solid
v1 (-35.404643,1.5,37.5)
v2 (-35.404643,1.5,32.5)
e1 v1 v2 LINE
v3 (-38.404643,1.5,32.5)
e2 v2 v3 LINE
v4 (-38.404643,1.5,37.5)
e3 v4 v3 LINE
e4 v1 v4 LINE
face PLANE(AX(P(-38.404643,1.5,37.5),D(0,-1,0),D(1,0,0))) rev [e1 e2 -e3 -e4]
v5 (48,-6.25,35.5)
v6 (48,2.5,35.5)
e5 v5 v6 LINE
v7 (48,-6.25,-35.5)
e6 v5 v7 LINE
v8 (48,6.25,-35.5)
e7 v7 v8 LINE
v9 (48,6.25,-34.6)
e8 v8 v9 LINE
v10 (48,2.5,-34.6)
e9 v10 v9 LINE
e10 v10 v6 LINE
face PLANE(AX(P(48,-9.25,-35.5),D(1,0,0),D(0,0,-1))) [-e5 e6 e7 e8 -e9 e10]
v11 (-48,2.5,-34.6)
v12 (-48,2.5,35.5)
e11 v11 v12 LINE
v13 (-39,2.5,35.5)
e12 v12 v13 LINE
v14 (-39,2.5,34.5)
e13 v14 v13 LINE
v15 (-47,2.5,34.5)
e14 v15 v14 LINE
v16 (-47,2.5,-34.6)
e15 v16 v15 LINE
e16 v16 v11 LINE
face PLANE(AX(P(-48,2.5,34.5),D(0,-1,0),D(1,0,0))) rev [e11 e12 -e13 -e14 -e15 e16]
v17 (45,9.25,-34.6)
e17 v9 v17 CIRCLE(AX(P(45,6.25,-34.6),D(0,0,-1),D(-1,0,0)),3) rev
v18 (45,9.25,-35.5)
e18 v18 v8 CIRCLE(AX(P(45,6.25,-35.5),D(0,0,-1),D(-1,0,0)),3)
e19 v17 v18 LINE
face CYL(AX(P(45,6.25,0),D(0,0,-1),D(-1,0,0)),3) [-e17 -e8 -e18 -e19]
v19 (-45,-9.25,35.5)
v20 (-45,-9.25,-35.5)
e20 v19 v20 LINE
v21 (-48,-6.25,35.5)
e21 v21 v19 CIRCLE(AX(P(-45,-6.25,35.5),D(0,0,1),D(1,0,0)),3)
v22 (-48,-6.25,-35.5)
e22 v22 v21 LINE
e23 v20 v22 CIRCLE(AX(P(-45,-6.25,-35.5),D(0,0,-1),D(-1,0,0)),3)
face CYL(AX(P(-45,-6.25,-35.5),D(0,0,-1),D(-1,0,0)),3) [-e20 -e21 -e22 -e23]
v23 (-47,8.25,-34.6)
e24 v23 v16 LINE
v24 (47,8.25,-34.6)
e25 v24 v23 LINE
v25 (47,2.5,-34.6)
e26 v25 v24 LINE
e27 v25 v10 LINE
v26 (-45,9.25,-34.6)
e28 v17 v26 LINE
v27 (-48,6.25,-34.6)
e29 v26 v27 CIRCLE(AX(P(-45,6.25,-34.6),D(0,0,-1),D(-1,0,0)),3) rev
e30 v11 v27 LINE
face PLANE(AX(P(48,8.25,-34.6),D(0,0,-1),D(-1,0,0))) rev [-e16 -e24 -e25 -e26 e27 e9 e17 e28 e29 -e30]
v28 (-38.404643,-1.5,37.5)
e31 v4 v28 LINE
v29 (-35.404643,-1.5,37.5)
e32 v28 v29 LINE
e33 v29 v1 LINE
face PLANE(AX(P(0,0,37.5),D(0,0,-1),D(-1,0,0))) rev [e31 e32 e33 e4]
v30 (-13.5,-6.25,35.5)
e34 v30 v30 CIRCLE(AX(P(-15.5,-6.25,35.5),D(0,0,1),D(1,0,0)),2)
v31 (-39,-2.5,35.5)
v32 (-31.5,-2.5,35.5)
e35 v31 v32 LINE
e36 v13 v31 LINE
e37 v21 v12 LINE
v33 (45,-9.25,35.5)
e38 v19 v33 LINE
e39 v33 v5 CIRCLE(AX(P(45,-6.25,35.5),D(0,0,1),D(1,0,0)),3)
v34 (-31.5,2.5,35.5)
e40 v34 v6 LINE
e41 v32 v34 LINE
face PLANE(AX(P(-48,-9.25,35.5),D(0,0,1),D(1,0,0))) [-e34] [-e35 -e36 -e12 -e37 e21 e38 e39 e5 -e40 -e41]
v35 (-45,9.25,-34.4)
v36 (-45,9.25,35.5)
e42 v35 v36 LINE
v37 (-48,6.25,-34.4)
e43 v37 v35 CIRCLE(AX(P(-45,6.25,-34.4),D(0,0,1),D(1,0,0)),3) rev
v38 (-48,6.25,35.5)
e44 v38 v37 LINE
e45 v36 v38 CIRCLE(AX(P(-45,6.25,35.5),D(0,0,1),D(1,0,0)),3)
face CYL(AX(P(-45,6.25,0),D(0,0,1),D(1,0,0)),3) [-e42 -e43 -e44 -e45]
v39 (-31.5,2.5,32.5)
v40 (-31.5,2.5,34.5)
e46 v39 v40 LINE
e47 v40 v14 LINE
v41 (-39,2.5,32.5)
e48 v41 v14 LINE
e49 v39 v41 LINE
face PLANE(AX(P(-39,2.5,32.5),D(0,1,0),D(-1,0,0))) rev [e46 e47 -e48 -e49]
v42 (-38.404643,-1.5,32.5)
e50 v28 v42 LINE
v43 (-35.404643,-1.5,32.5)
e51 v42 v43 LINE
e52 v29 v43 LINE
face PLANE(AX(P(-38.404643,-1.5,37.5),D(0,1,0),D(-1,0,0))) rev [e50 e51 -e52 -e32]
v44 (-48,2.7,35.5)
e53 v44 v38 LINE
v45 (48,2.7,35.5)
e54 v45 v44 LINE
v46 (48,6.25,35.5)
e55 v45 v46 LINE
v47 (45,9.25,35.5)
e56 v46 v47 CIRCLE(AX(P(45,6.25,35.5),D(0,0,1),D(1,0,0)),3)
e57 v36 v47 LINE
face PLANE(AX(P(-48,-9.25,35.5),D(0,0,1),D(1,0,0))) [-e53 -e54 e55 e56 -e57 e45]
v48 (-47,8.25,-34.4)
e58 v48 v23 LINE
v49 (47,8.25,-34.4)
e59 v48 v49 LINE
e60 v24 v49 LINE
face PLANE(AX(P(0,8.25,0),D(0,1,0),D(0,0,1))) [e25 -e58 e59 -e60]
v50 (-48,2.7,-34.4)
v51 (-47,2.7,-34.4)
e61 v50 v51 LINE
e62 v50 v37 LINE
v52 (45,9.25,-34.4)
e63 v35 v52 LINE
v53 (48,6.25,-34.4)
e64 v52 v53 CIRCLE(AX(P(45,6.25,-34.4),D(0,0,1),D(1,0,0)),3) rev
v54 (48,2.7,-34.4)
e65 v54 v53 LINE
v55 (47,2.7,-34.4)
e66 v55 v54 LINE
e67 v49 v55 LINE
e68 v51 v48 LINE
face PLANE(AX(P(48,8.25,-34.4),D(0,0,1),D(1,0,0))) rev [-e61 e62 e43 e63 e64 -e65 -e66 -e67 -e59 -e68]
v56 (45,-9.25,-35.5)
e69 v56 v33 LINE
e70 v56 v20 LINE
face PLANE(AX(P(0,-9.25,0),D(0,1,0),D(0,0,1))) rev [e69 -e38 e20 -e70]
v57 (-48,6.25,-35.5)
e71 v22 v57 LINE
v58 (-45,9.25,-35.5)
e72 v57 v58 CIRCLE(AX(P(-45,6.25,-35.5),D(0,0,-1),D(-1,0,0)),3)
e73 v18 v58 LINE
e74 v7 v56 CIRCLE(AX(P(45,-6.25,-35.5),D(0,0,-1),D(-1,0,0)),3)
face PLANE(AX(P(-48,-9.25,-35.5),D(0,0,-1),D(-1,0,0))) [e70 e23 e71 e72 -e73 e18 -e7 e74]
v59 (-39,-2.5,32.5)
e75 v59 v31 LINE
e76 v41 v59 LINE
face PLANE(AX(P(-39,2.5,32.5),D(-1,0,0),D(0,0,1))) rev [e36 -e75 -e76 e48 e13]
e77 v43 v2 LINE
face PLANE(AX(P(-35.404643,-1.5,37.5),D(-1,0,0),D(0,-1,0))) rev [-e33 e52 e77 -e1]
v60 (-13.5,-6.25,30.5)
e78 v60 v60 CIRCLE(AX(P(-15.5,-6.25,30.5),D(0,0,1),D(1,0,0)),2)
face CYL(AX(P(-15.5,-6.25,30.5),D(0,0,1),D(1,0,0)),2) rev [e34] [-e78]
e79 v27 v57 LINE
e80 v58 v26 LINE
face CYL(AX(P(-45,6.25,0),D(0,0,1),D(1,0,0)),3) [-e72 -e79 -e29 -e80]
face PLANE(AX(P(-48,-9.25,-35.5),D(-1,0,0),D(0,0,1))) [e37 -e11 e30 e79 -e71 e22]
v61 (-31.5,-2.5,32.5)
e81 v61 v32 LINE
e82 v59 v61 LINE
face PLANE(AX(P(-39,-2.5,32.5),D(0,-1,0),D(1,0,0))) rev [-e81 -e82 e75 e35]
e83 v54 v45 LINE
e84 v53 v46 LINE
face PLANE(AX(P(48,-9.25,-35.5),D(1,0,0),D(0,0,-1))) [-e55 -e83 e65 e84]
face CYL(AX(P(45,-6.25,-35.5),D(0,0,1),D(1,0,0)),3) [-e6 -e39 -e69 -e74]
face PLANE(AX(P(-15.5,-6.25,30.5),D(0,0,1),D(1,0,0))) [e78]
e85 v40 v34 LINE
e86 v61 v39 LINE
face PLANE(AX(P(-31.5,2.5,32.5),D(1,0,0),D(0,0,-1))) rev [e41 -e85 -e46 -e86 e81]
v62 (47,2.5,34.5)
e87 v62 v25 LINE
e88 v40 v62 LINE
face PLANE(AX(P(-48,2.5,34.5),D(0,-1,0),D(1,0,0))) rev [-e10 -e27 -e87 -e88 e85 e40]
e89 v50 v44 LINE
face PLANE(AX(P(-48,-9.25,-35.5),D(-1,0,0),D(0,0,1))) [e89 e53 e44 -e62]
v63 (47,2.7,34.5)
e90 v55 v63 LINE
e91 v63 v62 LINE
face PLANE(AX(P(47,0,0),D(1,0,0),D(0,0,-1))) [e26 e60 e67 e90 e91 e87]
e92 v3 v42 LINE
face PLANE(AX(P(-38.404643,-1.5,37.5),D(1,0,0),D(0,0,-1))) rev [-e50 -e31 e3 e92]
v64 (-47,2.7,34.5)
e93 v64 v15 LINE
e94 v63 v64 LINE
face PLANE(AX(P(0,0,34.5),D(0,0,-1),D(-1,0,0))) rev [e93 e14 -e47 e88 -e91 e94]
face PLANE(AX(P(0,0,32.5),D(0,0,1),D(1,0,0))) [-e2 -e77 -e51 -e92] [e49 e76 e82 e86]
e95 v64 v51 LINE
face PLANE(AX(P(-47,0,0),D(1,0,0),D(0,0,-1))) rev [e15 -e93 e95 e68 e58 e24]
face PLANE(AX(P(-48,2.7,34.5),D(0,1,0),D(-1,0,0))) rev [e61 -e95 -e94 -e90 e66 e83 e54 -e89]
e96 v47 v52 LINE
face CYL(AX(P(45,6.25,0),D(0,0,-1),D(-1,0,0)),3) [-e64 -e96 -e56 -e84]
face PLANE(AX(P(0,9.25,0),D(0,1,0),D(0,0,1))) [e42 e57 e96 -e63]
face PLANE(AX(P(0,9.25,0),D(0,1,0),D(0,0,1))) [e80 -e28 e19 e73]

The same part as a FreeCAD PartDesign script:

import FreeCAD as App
import Part
import Sketcher
from FreeCAD import Vector
Q = App.Units.Quantity


def edges_at(feature, points):
    """Names of the edges that pass closest to the given points."""
    edges = feature.Shape.Edges
    near = lambda p: min(range(len(edges)), key=lambda i: edges[i].distToShape(Part.Vertex(*p))[0])
    return sorted({f"Edge{near(p) + 1}" for p in points})

doc = App.newDocument("Part")
body = doc.addObject("PartDesign::Body", "Body")

# Sketch on XZ plane
sketch1 = doc.addObject("Sketcher::SketchObject", "Sketch")
body.addObject(sketch1)
sketch1.AttachmentSupport = (doc.XZ_Plane, [""])
sketch1.MapMode = "FlatFace"
sketch1.addGeometry([
    Part.LineSegment(Vector(-48, -36, 0), Vector(-48, 36, 0)),
    Part.LineSegment(Vector(-48, 36, 0), Vector(48, 36, 0)),
    Part.LineSegment(Vector(48, 36, 0), Vector(48, -36, 0)),
    Part.LineSegment(Vector(48, -36, 0), Vector(-48, -36, 0)),
], False)
sketch1.addConstraint([
    Sketcher.Constraint("Coincident", 0, 2, 1, 1),
    Sketcher.Constraint("Coincident", 1, 2, 2, 1),
    Sketcher.Constraint("Coincident", 2, 2, 3, 1),
    Sketcher.Constraint("Coincident", 3, 2, 0, 1),
    Sketcher.Constraint("Vertical", 0),
    Sketcher.Constraint("Horizontal", 1),
    Sketcher.Constraint("Vertical", 2),
    Sketcher.Constraint("Horizontal", 3),
    Sketcher.Constraint("Symmetric", 0, 2, 2, 2, -1, 1),
    Sketcher.Constraint("DistanceX", 1, 1, 1, 2, Q("96 mm")),
    Sketcher.Constraint("DistanceY", 0, 1, 0, 2, Q("71 mm")),
])
pad1 = doc.addObject("PartDesign::Pad", "Pad")
body.addObject(pad1)
pad1.Profile = sketch1
pad1.Type = "TwoLengths"
pad1.Length = 9.25
pad1.Length2 = 9.25
pad1.Reversed = True

# Sketch on XY plane
sketch2 = doc.addObject("Sketcher::SketchObject", "Sketch001")
body.addObject(sketch2)
sketch2.AttachmentSupport = (doc.XY_Plane, [""])
sketch2.MapMode = "FlatFace"
sketch2.AttachmentOffset = App.Placement(Vector(0, 0, 35.5), App.Rotation())
sketch2.addGeometry([
    Part.LineSegment(Vector(-39, 2, 0), Vector(-39, -2, 0)),
    Part.LineSegment(Vector(-39, -2, 0), Vector(-32, -2, 0)),
    Part.LineSegment(Vector(-32, -2, 0), Vector(-32, 2, 0)),
    Part.LineSegment(Vector(-32, 2, 0), Vector(-39, 2, 0)),
], False)
sketch2.addConstraint([
    Sketcher.Constraint("Coincident", 0, 2, 1, 1),
    Sketcher.Constraint("Coincident", 1, 2, 2, 1),
    Sketcher.Constraint("Coincident", 2, 2, 3, 1),
    Sketcher.Constraint("Coincident", 3, 2, 0, 1),
    Sketcher.Constraint("Vertical", 0),
    Sketcher.Constraint("Horizontal", 1),
    Sketcher.Constraint("Vertical", 2),
    Sketcher.Constraint("Horizontal", 3),
    Sketcher.Constraint("DistanceY", 0, 2, 0, 1, Q("5 mm")),
    Sketcher.Constraint("DistanceX", 1, 1, 1, 2, Q("7.5 mm")),
    Sketcher.Constraint("DistanceX", 0, 2, -1, 1, Q("39 mm")),
    Sketcher.Constraint("DistanceY", 0, 2, -1, 1, Q("2.5 mm")),
])
pocket1 = doc.addObject("PartDesign::Pocket", "Pocket")
body.addObject(pocket1)
pocket1.Profile = sketch2
pocket1.Length = 3

# Sketch on XY plane
sketch3 = doc.addObject("Sketcher::SketchObject", "Sketch002")
body.addObject(sketch3)
sketch3.AttachmentSupport = (doc.XY_Plane, [""])
sketch3.MapMode = "FlatFace"
sketch3.AttachmentOffset = App.Placement(Vector(0, 0, 32.5), App.Rotation())
sketch3.addGeometry([
    Part.LineSegment(Vector(-38.4, 1.5, 0), Vector(-38.4, -1.5, 0)),
    Part.LineSegment(Vector(-38.4, -1.5, 0), Vector(-35.4, -1.5, 0)),
    Part.LineSegment(Vector(-35.4, -1.5, 0), Vector(-35.4, 1.5, 0)),
    Part.LineSegment(Vector(-35.4, 1.5, 0), Vector(-38.4, 1.5, 0)),
], False)
sketch3.addConstraint([
    Sketcher.Constraint("Coincident", 0, 2, 1, 1),
    Sketcher.Constraint("Coincident", 1, 2, 2, 1),
    Sketcher.Constraint("Coincident", 2, 2, 3, 1),
    Sketcher.Constraint("Coincident", 3, 2, 0, 1),
    Sketcher.Constraint("Vertical", 0),
    Sketcher.Constraint("Horizontal", 1),
    Sketcher.Constraint("Vertical", 2),
    Sketcher.Constraint("Horizontal", 3),
    Sketcher.Constraint("Equal", 3, 0),
    Sketcher.Constraint("DistanceX", 1, 1, 1, 2, Q("3 mm")),
    Sketcher.Constraint("DistanceY", 0, 2, -1, 1, Q("1.5 mm")),
    Sketcher.Constraint("DistanceX", 0, 2, -1, 1, Q("38.404643 mm")),
])
pad2 = doc.addObject("PartDesign::Pad", "Pad001")
body.addObject(pad2)
pad2.Profile = sketch3
pad2.Length = 5

# Sketch on XY plane
sketch4 = doc.addObject("Sketcher::SketchObject", "Sketch003")
body.addObject(sketch4)
sketch4.AttachmentSupport = (doc.XY_Plane, [""])
sketch4.MapMode = "FlatFace"
sketch4.AttachmentOffset = App.Placement(Vector(0, 0, 35.5), App.Rotation())
sketch4.addGeometry(Part.Circle(Vector(-15.5, -6.2, 0), Vector(0, 0, 1), 2), False)
sketch4.addConstraint([
    Sketcher.Constraint("Diameter", 0, Q("4 mm")),
    Sketcher.Constraint("DistanceX", 0, 3, -1, 1, Q("15.5 mm")),
    Sketcher.Constraint("DistanceY", 0, 3, -1, 1, Q("6.25 mm")),
])
pocket2 = doc.addObject("PartDesign::Pocket", "Pocket001")
body.addObject(pocket2)
pocket2.Profile = sketch4
pocket2.Length = 5

# Sketch on XY plane
sketch5 = doc.addObject("Sketcher::SketchObject", "Sketch004")
body.addObject(sketch5)
sketch5.AttachmentSupport = (doc.XY_Plane, [""])
sketch5.MapMode = "FlatFace"
sketch5.AttachmentOffset = App.Placement(Vector(0, 0, 35.5), App.Rotation())
sketch5.addGeometry([
    Part.LineSegment(Vector(-48, 2.7, 0), Vector(-48, 2.5, 0)),
    Part.LineSegment(Vector(-48, 2.5, 0), Vector(48, 2.5, 0)),
    Part.LineSegment(Vector(48, 2.5, 0), Vector(48, 2.7, 0)),
    Part.LineSegment(Vector(48, 2.7, 0), Vector(-48, 2.7, 0)),
], False)
sketch5.addConstraint([
    Sketcher.Constraint("Coincident", 0, 2, 1, 1),
    Sketcher.Constraint("Coincident", 1, 2, 2, 1),
    Sketcher.Constraint("Coincident", 2, 2, 3, 1),
    Sketcher.Constraint("Coincident", 3, 2, 0, 1),
    Sketcher.Constraint("Vertical", 0),
    Sketcher.Constraint("Horizontal", 1),
    Sketcher.Constraint("Vertical", 2),
    Sketcher.Constraint("Horizontal", 3),
    Sketcher.Constraint("DistanceX", 1, 1, 1, 2, Q("96 mm")),
    Sketcher.Constraint("DistanceY", 0, 2, 0, 1, Q("0.2 mm")),
    Sketcher.Constraint("DistanceX", 0, 2, -1, 1, Q("48 mm")),
    Sketcher.Constraint("DistanceY", -1, 1, 0, 2, Q("2.5 mm")),
])
pocket3 = doc.addObject("PartDesign::Pocket", "Pocket002")
body.addObject(pocket3)
pocket3.Profile = sketch5
pocket3.Length = 1

# Sketch on YZ plane
sketch6 = doc.addObject("Sketcher::SketchObject", "Sketch005")
body.addObject(sketch6)
sketch6.AttachmentSupport = (doc.YZ_Plane, [""])
sketch6.MapMode = "FlatFace"
sketch6.AttachmentOffset = App.Placement(Vector(0, 0, -48), App.Rotation())
sketch6.addGeometry([
    Part.LineSegment(Vector(2.7, -34.5, 0), Vector(2.5, -34.5, 0)),
    Part.LineSegment(Vector(2.5, -34.5, 0), Vector(2.5, 35.5, 0)),
    Part.LineSegment(Vector(2.5, 35.5, 0), Vector(2.7, 35.5, 0)),
    Part.LineSegment(Vector(2.7, 35.5, 0), Vector(2.7, -34.5, 0)),
], False)
sketch6.addConstraint([
    Sketcher.Constraint("Coincident", 0, 2, 1, 1),
    Sketcher.Constraint("Coincident", 1, 2, 2, 1),
    Sketcher.Constraint("Coincident", 2, 2, 3, 1),
    Sketcher.Constraint("Coincident", 3, 2, 0, 1),
    Sketcher.Constraint("Horizontal", 0),
    Sketcher.Constraint("Vertical", 1),
    Sketcher.Constraint("Horizontal", 2),
    Sketcher.Constraint("Vertical", 3),
    Sketcher.Constraint("DistanceY", 1, 1, 1, 2, Q("70 mm")),
    Sketcher.Constraint("DistanceX", 0, 2, 0, 1, Q("0.2 mm")),
    Sketcher.Constraint("DistanceX", -1, 1, 0, 2, Q("2.5 mm")),
    Sketcher.Constraint("DistanceY", 0, 2, -1, 1, Q("34.5 mm")),
])
pocket4 = doc.addObject("PartDesign::Pocket", "Pocket003")
body.addObject(pocket4)
pocket4.Profile = sketch6
pocket4.Length = 1
pocket4.Reversed = True

# Sketch on YZ plane
sketch7 = doc.addObject("Sketcher::SketchObject", "Sketch006")
body.addObject(sketch7)
sketch7.AttachmentSupport = (doc.YZ_Plane, [""])
sketch7.MapMode = "FlatFace"
sketch7.AttachmentOffset = App.Placement(Vector(0, 0, 48), App.Rotation())
sketch7.addGeometry([
    Part.LineSegment(Vector(2.7, 35.5, 0), Vector(2.5, 35.5, 0)),
    Part.LineSegment(Vector(2.5, 35.5, 0), Vector(2.5, -34.5, 0)),
    Part.LineSegment(Vector(2.5, -34.5, 0), Vector(2.7, -34.5, 0)),
    Part.LineSegment(Vector(2.7, -34.5, 0), Vector(2.7, 35.5, 0)),
], False)
sketch7.addConstraint([
    Sketcher.Constraint("Coincident", 0, 2, 1, 1),
    Sketcher.Constraint("Coincident", 1, 2, 2, 1),
    Sketcher.Constraint("Coincident", 2, 2, 3, 1),
    Sketcher.Constraint("Coincident", 3, 2, 0, 1),
    Sketcher.Constraint("Horizontal", 0),
    Sketcher.Constraint("Vertical", 1),
    Sketcher.Constraint("Horizontal", 2),
    Sketcher.Constraint("Vertical", 3),
    Sketcher.Constraint("DistanceY", 1, 2, 1, 1, Q("70 mm")),
    Sketcher.Constraint("DistanceX", 0, 2, 0, 1, Q("0.2 mm")),
    Sketcher.Constraint("DistanceX", -1, 1, 0, 2, Q("2.5 mm")),
    Sketcher.Constraint("DistanceY", -1, 1, 0, 2, Q("35.5 mm")),
])
pocket5 = doc.addObject("PartDesign::Pocket", "Pocket004")
body.addObject(pocket5)
pocket5.Profile = sketch7
pocket5.Length = 1

# Sketch on XZ plane
sketch8 = doc.addObject("Sketcher::SketchObject", "Sketch007")
body.addObject(sketch8)
sketch8.AttachmentSupport = (doc.XZ_Plane, [""])
sketch8.MapMode = "FlatFace"
sketch8.AttachmentOffset = App.Placement(Vector(0, 0, -9.25), App.Rotation())
sketch8.addGeometry([
    Part.LineSegment(Vector(-48, -34.6, 0), Vector(-48, -34.4, 0)),
    Part.LineSegment(Vector(-48, -34.4, 0), Vector(48, -34.4, 0)),
    Part.LineSegment(Vector(48, -34.4, 0), Vector(48, -34.6, 0)),
    Part.LineSegment(Vector(48, -34.6, 0), Vector(-48, -34.6, 0)),
], False)
sketch8.addConstraint([
    Sketcher.Constraint("Coincident", 0, 2, 1, 1),
    Sketcher.Constraint("Coincident", 1, 2, 2, 1),
    Sketcher.Constraint("Coincident", 2, 2, 3, 1),
    Sketcher.Constraint("Coincident", 3, 2, 0, 1),
    Sketcher.Constraint("Vertical", 0),
    Sketcher.Constraint("Horizontal", 1),
    Sketcher.Constraint("Vertical", 2),
    Sketcher.Constraint("Horizontal", 3),
    Sketcher.Constraint("DistanceX", 1, 1, 1, 2, Q("96 mm")),
    Sketcher.Constraint("DistanceY", 0, 1, 0, 2, Q("0.2 mm")),
    Sketcher.Constraint("DistanceX", 0, 2, -1, 1, Q("48 mm")),
    Sketcher.Constraint("DistanceY", 0, 2, -1, 1, Q("34.4 mm")),
])
pocket6 = doc.addObject("PartDesign::Pocket", "Pocket005")
body.addObject(pocket6)
pocket6.Profile = sketch8
pocket6.Length = 1
pocket6.Reversed = True

# Sketch on YZ plane
sketch9 = doc.addObject("Sketcher::SketchObject", "Sketch008")
body.addObject(sketch9)
sketch9.AttachmentSupport = (doc.YZ_Plane, [""])
sketch9.MapMode = "FlatFace"
sketch9.AttachmentOffset = App.Placement(Vector(0, 0, -48), App.Rotation())
sketch9.addGeometry([
    Part.LineSegment(Vector(8.25, -34.6, 0), Vector(2.5, -34.6, 0)),
    Part.LineSegment(Vector(2.5, -34.6, 0), Vector(2.5, -34.4, 0)),
    Part.LineSegment(Vector(2.5, -34.4, 0), Vector(8.25, -34.4, 0)),
    Part.LineSegment(Vector(8.25, -34.4, 0), Vector(8.25, -34.6, 0)),
], False)
sketch9.addConstraint([
    Sketcher.Constraint("Coincident", 0, 2, 1, 1),
    Sketcher.Constraint("Coincident", 1, 2, 2, 1),
    Sketcher.Constraint("Coincident", 2, 2, 3, 1),
    Sketcher.Constraint("Coincident", 3, 2, 0, 1),
    Sketcher.Constraint("Horizontal", 0),
    Sketcher.Constraint("Vertical", 1),
    Sketcher.Constraint("Horizontal", 2),
    Sketcher.Constraint("Vertical", 3),
    Sketcher.Constraint("DistanceY", 1, 1, 1, 2, Q("0.2 mm")),
    Sketcher.Constraint("DistanceX", 0, 2, 0, 1, Q("5.75 mm")),
    Sketcher.Constraint("DistanceX", -1, 1, 0, 2, Q("2.5 mm")),
    Sketcher.Constraint("DistanceY", 0, 2, -1, 1, Q("34.6 mm")),
])
pocket7 = doc.addObject("PartDesign::Pocket", "Pocket006")
body.addObject(pocket7)
pocket7.Profile = sketch9
pocket7.Length = 1
pocket7.Reversed = True

# Sketch on YZ plane
sketch10 = doc.addObject("Sketcher::SketchObject", "Sketch009")
body.addObject(sketch10)
sketch10.AttachmentSupport = (doc.YZ_Plane, [""])
sketch10.MapMode = "FlatFace"
sketch10.AttachmentOffset = App.Placement(Vector(0, 0, 48), App.Rotation())
sketch10.addGeometry([
    Part.LineSegment(Vector(8.25, -34.4, 0), Vector(2.5, -34.4, 0)),
    Part.LineSegment(Vector(2.5, -34.4, 0), Vector(2.5, -34.6, 0)),
    Part.LineSegment(Vector(2.5, -34.6, 0), Vector(8.25, -34.6, 0)),
    Part.LineSegment(Vector(8.25, -34.6, 0), Vector(8.25, -34.4, 0)),
], False)
sketch10.addConstraint([
    Sketcher.Constraint("Coincident", 0, 2, 1, 1),
    Sketcher.Constraint("Coincident", 1, 2, 2, 1),
    Sketcher.Constraint("Coincident", 2, 2, 3, 1),
    Sketcher.Constraint("Coincident", 3, 2, 0, 1),
    Sketcher.Constraint("Horizontal", 0),
    Sketcher.Constraint("Vertical", 1),
    Sketcher.Constraint("Horizontal", 2),
    Sketcher.Constraint("Vertical", 3),
    Sketcher.Constraint("DistanceY", 1, 2, 1, 1, Q("0.2 mm")),
    Sketcher.Constraint("DistanceX", 0, 2, 0, 1, Q("5.75 mm")),
    Sketcher.Constraint("DistanceX", -1, 1, 0, 2, Q("2.5 mm")),
    Sketcher.Constraint("DistanceY", 0, 2, -1, 1, Q("34.4 mm")),
])
pocket8 = doc.addObject("PartDesign::Pocket", "Pocket007")
body.addObject(pocket8)
pocket8.Profile = sketch10
pocket8.Length = 1
doc.recompute()

fillet = doc.addObject("PartDesign::Fillet", "Fillet")
body.addObject(fillet)
fillet.Base = (pocket8, edges_at(pocket8, [(-48, -9.25, 0), (48, -9.25, 0)]))
fillet.Radius = 3
doc.recompute()

fillet2 = doc.addObject("PartDesign::Fillet", "Fillet001")
body.addObject(fillet2)
fillet2.Base = (fillet, edges_at(fillet, [
    (48, 9.25, -35.05),
    (-48, 9.25, 0.55),
    (48, 9.25, 0.55),
    (-48, 9.25, -35.05),
]))
fillet2.Radius = 3

doc.recompute()
